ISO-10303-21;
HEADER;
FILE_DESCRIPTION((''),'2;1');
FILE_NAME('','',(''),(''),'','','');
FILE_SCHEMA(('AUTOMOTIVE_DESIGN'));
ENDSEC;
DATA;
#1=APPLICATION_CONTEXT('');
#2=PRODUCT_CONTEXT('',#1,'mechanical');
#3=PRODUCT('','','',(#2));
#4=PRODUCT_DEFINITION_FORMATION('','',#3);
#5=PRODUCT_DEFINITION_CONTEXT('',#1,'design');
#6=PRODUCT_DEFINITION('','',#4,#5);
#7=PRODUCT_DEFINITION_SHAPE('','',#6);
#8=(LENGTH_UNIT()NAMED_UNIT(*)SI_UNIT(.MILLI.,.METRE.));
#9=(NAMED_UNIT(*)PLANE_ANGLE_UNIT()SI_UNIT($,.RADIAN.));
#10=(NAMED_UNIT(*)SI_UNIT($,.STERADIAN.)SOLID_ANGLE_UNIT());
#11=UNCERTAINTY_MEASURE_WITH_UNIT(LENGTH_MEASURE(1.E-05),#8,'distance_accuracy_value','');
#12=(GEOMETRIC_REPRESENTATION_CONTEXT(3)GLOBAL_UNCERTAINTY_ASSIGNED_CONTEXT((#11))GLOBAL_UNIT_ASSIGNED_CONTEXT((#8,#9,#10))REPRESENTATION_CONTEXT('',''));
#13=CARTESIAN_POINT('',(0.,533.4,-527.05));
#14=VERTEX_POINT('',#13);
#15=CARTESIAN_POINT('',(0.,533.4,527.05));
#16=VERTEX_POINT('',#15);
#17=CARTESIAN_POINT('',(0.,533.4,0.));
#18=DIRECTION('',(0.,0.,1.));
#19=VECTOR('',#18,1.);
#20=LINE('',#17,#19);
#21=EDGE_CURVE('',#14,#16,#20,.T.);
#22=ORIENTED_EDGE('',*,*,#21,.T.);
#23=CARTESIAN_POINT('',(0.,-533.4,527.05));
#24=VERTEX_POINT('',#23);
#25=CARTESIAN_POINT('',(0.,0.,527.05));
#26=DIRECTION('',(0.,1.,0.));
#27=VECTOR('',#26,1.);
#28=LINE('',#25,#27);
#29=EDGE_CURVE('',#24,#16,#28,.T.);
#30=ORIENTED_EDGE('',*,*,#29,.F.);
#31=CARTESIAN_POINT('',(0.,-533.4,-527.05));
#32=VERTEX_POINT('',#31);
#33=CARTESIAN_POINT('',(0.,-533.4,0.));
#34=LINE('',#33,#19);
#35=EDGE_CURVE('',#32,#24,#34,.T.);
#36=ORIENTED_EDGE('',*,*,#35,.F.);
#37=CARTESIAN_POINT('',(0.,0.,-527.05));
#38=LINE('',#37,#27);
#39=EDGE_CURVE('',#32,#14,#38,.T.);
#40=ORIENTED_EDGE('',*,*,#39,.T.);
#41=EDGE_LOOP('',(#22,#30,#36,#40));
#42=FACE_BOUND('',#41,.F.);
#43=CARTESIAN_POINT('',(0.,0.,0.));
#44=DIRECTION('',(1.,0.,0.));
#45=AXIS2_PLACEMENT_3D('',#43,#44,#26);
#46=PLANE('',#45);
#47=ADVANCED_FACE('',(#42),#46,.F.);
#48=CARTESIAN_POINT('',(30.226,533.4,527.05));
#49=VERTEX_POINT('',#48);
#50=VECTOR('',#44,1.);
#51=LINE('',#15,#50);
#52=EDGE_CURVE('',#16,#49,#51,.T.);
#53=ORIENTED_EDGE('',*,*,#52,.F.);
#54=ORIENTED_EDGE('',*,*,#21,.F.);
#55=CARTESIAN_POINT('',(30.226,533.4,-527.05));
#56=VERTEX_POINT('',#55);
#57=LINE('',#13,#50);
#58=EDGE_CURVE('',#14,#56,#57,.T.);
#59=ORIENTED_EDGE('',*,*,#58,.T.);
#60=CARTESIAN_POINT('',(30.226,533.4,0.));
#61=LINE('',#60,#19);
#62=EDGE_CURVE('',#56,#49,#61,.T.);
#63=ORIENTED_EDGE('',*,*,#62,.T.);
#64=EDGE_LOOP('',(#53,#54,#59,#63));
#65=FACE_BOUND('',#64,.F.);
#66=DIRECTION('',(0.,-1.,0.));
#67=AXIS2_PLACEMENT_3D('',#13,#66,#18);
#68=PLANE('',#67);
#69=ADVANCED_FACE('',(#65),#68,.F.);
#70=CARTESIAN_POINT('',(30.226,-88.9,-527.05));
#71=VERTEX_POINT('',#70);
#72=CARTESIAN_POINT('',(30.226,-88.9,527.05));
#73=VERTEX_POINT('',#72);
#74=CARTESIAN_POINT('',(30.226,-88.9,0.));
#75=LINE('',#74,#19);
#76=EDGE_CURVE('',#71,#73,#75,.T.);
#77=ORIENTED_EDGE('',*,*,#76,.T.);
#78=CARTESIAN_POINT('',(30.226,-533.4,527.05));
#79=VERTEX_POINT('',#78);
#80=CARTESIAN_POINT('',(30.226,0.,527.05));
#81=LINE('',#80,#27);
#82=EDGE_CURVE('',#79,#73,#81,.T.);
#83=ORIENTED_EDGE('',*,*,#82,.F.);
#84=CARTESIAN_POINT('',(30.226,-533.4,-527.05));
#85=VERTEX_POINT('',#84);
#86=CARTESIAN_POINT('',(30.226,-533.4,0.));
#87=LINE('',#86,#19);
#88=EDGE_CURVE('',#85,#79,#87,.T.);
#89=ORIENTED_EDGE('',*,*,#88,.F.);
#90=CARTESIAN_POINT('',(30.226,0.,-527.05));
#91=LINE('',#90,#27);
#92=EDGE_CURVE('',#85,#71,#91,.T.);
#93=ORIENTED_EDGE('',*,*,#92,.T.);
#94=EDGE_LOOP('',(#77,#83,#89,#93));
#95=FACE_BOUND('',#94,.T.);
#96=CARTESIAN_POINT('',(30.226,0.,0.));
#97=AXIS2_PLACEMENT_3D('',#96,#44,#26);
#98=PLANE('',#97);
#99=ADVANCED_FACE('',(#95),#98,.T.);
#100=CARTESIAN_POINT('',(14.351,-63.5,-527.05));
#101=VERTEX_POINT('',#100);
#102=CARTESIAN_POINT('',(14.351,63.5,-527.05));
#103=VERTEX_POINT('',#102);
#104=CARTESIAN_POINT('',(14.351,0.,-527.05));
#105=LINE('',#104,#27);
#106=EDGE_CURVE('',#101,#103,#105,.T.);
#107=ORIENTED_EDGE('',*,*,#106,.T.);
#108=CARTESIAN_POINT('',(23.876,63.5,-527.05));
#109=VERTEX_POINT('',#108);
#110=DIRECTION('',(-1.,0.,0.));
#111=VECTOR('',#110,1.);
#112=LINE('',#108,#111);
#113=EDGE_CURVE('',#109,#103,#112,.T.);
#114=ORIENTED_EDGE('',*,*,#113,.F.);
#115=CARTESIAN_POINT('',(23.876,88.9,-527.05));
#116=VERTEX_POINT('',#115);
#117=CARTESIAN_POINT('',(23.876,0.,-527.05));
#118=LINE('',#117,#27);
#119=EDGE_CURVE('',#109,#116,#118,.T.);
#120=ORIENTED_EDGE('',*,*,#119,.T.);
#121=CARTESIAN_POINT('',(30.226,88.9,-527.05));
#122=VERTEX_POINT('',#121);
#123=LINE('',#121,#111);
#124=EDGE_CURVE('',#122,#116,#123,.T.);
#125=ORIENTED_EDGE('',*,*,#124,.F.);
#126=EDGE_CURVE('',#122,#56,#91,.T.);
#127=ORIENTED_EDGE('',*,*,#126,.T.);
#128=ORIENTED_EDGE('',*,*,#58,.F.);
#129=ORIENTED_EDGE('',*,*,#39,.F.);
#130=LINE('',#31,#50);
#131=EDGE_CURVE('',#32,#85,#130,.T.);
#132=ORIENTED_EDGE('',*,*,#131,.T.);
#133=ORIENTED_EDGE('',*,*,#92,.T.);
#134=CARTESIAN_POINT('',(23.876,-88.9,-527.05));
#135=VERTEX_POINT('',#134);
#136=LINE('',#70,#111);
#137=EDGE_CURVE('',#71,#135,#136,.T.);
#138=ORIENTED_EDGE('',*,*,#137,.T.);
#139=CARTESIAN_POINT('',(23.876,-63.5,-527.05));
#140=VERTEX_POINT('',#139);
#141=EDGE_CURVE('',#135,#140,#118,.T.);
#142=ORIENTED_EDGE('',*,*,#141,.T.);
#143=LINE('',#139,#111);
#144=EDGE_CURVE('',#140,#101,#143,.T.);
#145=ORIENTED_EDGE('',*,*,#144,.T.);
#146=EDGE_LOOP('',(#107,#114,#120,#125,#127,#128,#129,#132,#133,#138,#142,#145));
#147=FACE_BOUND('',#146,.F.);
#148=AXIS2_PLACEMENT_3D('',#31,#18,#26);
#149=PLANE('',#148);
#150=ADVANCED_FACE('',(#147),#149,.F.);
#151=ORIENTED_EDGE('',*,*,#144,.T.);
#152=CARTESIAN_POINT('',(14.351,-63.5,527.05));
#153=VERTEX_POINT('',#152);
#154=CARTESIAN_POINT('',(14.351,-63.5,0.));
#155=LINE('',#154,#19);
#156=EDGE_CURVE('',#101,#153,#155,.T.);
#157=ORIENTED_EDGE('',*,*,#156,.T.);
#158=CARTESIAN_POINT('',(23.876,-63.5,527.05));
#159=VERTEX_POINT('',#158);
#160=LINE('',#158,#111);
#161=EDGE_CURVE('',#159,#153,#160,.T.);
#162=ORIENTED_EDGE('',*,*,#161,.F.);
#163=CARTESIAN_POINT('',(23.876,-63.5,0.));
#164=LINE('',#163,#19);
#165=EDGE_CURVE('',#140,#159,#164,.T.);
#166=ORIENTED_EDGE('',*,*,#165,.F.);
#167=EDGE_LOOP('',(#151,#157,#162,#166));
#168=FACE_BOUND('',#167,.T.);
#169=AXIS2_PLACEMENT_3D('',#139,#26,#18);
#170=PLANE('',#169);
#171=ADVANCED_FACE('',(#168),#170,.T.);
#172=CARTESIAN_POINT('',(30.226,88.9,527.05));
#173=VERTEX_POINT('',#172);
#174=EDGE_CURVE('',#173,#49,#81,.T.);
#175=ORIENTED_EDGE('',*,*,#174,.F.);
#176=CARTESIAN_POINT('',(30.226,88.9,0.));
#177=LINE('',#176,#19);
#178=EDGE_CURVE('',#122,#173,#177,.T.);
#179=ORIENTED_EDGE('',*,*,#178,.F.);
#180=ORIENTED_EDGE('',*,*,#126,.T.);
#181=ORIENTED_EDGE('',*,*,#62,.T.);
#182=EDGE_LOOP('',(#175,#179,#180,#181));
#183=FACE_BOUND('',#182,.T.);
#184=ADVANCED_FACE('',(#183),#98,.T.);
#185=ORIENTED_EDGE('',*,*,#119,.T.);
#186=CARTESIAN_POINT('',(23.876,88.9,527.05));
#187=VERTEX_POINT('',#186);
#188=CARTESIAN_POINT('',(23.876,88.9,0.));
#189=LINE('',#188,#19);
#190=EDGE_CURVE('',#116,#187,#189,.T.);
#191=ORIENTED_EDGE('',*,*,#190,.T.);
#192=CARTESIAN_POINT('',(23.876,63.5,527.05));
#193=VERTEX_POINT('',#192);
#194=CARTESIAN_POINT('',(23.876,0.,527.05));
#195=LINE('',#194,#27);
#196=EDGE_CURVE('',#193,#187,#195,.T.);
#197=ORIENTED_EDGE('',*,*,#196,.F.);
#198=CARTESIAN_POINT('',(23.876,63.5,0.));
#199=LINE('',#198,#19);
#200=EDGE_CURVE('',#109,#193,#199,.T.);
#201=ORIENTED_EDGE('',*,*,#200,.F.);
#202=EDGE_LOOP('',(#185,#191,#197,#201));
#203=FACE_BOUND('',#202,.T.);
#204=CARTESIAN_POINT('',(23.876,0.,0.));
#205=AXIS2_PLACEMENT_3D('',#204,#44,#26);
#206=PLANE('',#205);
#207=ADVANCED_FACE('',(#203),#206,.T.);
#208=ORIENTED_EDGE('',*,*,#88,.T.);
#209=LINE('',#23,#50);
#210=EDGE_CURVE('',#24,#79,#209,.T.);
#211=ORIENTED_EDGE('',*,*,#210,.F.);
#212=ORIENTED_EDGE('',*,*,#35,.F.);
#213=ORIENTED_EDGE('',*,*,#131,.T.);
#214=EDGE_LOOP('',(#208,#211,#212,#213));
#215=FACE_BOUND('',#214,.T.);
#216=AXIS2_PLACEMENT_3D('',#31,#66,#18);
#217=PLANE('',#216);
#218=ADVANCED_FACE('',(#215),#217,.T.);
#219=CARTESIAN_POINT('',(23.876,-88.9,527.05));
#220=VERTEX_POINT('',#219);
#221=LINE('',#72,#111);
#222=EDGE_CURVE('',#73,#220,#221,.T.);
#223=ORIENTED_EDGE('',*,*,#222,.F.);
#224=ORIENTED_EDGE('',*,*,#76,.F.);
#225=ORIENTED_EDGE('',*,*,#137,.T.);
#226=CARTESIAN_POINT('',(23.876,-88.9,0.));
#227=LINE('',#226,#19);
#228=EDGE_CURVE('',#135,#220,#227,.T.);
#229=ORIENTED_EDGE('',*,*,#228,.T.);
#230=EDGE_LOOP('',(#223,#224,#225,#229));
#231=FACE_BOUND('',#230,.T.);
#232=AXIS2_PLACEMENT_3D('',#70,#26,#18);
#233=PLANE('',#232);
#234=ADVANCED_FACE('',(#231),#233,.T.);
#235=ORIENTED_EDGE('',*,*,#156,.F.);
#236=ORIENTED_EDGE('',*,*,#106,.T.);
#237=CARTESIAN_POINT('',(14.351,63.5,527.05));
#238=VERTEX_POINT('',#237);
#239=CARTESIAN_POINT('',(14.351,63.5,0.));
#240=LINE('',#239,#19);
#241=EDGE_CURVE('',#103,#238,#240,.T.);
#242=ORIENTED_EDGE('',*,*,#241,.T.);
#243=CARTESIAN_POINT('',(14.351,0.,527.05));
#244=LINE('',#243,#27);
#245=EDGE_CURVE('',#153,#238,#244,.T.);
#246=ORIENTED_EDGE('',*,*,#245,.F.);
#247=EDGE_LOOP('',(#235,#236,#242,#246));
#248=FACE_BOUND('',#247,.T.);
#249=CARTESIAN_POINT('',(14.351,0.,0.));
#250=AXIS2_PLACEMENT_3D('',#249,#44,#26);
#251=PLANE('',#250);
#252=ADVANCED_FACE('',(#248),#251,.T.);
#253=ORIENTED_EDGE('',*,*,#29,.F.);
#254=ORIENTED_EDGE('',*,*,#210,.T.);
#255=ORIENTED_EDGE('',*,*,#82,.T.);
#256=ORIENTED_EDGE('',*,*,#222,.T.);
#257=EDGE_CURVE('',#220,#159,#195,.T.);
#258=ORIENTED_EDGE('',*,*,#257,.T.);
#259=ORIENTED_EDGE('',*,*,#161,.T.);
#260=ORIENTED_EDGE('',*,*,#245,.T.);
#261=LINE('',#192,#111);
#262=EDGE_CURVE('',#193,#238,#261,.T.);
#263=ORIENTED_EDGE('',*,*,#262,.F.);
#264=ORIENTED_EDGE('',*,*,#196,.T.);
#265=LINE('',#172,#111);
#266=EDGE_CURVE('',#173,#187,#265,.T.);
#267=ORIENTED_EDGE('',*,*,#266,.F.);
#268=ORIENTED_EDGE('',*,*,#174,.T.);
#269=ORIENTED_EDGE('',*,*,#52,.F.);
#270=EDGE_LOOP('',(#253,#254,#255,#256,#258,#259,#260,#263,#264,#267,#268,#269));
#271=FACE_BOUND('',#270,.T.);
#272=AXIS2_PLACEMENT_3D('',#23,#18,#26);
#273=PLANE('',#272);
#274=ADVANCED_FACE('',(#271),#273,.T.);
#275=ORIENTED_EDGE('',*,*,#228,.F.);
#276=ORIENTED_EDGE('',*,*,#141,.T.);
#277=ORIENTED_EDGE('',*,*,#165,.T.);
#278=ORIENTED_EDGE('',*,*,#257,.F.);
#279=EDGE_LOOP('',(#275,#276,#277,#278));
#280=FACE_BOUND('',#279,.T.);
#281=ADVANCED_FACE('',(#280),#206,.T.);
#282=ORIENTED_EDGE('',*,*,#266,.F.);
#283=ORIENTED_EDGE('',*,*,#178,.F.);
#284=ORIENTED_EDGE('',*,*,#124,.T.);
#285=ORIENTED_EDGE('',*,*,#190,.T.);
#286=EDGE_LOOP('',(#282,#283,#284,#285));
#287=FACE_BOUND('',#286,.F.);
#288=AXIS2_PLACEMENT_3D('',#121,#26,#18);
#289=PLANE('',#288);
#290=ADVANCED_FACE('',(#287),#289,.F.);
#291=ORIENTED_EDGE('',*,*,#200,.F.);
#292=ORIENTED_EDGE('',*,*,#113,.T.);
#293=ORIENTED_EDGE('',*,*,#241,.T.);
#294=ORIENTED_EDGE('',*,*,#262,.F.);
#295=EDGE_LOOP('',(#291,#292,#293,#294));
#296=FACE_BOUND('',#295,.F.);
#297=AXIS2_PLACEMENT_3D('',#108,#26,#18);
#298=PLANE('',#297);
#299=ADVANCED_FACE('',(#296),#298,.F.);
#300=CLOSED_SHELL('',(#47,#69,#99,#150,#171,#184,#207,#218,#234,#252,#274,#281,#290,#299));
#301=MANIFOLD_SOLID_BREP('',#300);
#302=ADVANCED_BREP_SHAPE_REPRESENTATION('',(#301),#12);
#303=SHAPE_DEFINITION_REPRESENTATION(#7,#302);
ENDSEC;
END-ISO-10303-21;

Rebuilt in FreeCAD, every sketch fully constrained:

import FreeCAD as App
import Part
import Sketcher
from FreeCAD import Vector
Q = App.Units.Quantity


def add_polygon(sketch, points):
    """Adds a closed chain of lines whose ends are joined by coincident constraints."""
    first, n = sketch.GeometryCount, len(points)
    for a, b in zip(points, points[1:] + points[:1]):
        sketch.addGeometry(Part.LineSegment(App.Vector(*a, 0), App.Vector(*b, 0)), False)
    for i in range(n):
        sketch.addConstraint(Sketcher.Constraint("Coincident", first + i, 2, first + (i + 1) % n, 1))

doc = App.newDocument("Part")
body = doc.addObject("PartDesign::Body", "Body")

# Sketch on YZ plane
sketch1 = body.newObject("Sketcher::SketchObject", "Sketch")
sketch1.AttachmentSupport = (doc.getObject("YZ_Plane"), [""])
sketch1.MapMode = "FlatFace"
add_polygon(sketch1, [(-533, 527), (-533, -527), (533, -527), (533, 527)])  # lines 0-3
sketch1.addConstraint(Sketcher.Constraint("Vertical", 0))
sketch1.addConstraint(Sketcher.Constraint("Horizontal", 1))
sketch1.addConstraint(Sketcher.Constraint("Vertical", 2))
sketch1.addConstraint(Sketcher.Constraint("Horizontal", 3))
sketch1.addConstraint(Sketcher.Constraint("Symmetric", 0, 2, 2, 2, -1, 1))
sketch1.addConstraint(Sketcher.Constraint("DistanceX", 1, 1, 1, 2, Q("42 in")))
sketch1.addConstraint(Sketcher.Constraint("DistanceY", 0, 2, 0, 1, Q("41.5 in")))
pad1 = body.newObject("PartDesign::Pad", "Pad")
pad1.Profile = sketch1
pad1.Length = Q("1.19 in")

# Sketch on YZ plane
sketch2 = body.newObject("Sketcher::SketchObject", "Sketch001")
sketch2.AttachmentSupport = (doc.getObject("YZ_Plane"), [""])
sketch2.MapMode = "FlatFace"
sketch2.AttachmentOffset = App.Placement(Vector(0, 0, 1.19 * 25.4), App.Rotation())
add_polygon(sketch2, [(-89, 527), (-89, -527), (89, -527), (89, 527)])  # lines 0-3
sketch2.addConstraint(Sketcher.Constraint("Vertical", 0))
sketch2.addConstraint(Sketcher.Constraint("Horizontal", 1))
sketch2.addConstraint(Sketcher.Constraint("Vertical", 2))
sketch2.addConstraint(Sketcher.Constraint("Horizontal", 3))
sketch2.addConstraint(Sketcher.Constraint("Symmetric", 0, 2, 2, 2, -1, 1))
sketch2.addConstraint(Sketcher.Constraint("DistanceX", 1, 1, 1, 2, Q("7 in")))
sketch2.addConstraint(Sketcher.Constraint("DistanceY", 0, 2, 0, 1, Q("41.5 in")))
pocket1 = body.newObject("PartDesign::Pocket", "Pocket")
pocket1.Profile = sketch2
pocket1.Length = Q("0.25 in")

# Sketch on YZ plane
sketch3 = body.newObject("Sketcher::SketchObject", "Sketch002")
sketch3.AttachmentSupport = (doc.getObject("YZ_Plane"), [""])
sketch3.MapMode = "FlatFace"
sketch3.AttachmentOffset = App.Placement(Vector(0, 0, 0.94 * 25.4), App.Rotation())
add_polygon(sketch3, [(-64, 527), (-64, -527), (64, -527), (64, 527)])  # lines 0-3
sketch3.addConstraint(Sketcher.Constraint("Vertical", 0))
sketch3.addConstraint(Sketcher.Constraint("Horizontal", 1))
sketch3.addConstraint(Sketcher.Constraint("Vertical", 2))
sketch3.addConstraint(Sketcher.Constraint("Horizontal", 3))
sketch3.addConstraint(Sketcher.Constraint("Symmetric", 0, 2, 2, 2, -1, 1))
sketch3.addConstraint(Sketcher.Constraint("DistanceX", 1, 1, 1, 2, Q("5 in")))
sketch3.addConstraint(Sketcher.Constraint("DistanceY", 0, 2, 0, 1, Q("41.5 in")))
pocket2 = body.newObject("PartDesign::Pocket", "Pocket001")
pocket2.Profile = sketch3
pocket2.Length = Q("0.375 in")

doc.recompute()
